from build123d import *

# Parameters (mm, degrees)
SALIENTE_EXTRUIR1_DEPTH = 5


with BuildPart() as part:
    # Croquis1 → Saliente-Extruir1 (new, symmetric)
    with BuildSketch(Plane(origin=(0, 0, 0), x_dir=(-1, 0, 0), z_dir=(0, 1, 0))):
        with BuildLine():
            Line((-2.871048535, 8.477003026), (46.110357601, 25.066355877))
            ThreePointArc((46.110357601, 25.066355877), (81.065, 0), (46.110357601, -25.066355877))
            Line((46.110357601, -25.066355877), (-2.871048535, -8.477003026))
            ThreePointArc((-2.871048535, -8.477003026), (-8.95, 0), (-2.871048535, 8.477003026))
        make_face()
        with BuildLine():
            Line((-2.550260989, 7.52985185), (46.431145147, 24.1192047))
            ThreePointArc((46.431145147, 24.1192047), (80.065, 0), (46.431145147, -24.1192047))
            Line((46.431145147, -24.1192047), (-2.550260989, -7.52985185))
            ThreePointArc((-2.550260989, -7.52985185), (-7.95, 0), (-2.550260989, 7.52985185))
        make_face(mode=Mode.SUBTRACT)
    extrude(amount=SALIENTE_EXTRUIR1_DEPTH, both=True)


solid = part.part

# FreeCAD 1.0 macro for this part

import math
import FreeCAD as App
import Part
import Sketcher
Q = App.Units.Quantity

doc = App.newDocument("Part")
body = doc.addObject("PartDesign::Body", "Body")

# Sketch on XZ plane
sketch1 = body.newObject("Sketcher::SketchObject", "Sketch")
sketch1.AttachmentSupport = (doc.getObject("XZ_Plane"), [""])
sketch1.MapMode = "FlatFace"
sketch1.addGeometry([
    Part.LineSegment(App.Vector(-46.110358, 25.066356, 0), App.Vector(2.871049, 8.477003, 0)),  # 0
    Part.ArcOfCircle(Part.Circle(App.Vector(0, 0, 0), App.Vector(0, 0, 1), 8.95), math.radians(-71.289441), math.radians(71.289441)),  # 1
    Part.LineSegment(App.Vector(2.871049, -8.477003, 0), App.Vector(-46.110358, -25.066356, 0)),  # 2
    Part.ArcOfCircle(Part.Circle(App.Vector(-54.6, 0, 0), App.Vector(0, 0, 1), 26.465), math.radians(71.289441), math.radians(288.710559)),  # 3
    Part.LineSegment(App.Vector(2.550261, 7.529852, 0), App.Vector(-46.431145, 24.119205, 0)),  # 4
    Part.ArcOfCircle(Part.Circle(App.Vector(-54.6, 0, 0), App.Vector(0, 0, 1), 25.465), math.radians(71.289441), math.radians(288.710559)),  # 5
    Part.LineSegment(App.Vector(-46.431145, -24.119205, 0), App.Vector(2.550261, -7.529852, 0)),  # 6
    Part.ArcOfCircle(Part.Circle(App.Vector(0, 0, 0), App.Vector(0, 0, 1), 7.95), math.radians(-71.289441), math.radians(71.289441)),  # 7
], False)
sketch1.addConstraint([
    Sketcher.Constraint("Tangent", 0, 2, 1, 2),
    Sketcher.Constraint("Tangent", 1, 1, 2, 1),
    Sketcher.Constraint("Tangent", 2, 2, 3, 2),
    Sketcher.Constraint("Tangent", 3, 1, 0, 1),
    Sketcher.Constraint("Tangent", 4, 2, 5, 1),
    Sketcher.Constraint("Tangent", 5, 2, 6, 1),
    Sketcher.Constraint("Tangent", 6, 2, 7, 1),
    Sketcher.Constraint("Tangent", 7, 2, 4, 1),
    Sketcher.Constraint("Coincident", 1, 3, -1, 1),
    Sketcher.Constraint("Coincident", 7, 3, -1, 1),
    Sketcher.Constraint("Coincident", 5, 3, 3, 3),
    Sketcher.Constraint("PointOnObject", 3, 3, -1),
    Sketcher.Constraint("Parallel", 0, 4),
    Sketcher.Constraint("Radius", 1, Q("8.95 mm")),
    Sketcher.Constraint("Radius", 7, Q("7.95 mm")),
    Sketcher.Constraint("Radius", 3, Q("26.465 mm")),
    Sketcher.Constraint("DistanceX", 3, 3, -1, 1, Q("54.6 mm")),
])
pad1 = body.newObject("PartDesign::Pad", "Pad")
pad1.Profile = sketch1
pad1.Length = 10
pad1.Midplane = True

doc.recompute()
